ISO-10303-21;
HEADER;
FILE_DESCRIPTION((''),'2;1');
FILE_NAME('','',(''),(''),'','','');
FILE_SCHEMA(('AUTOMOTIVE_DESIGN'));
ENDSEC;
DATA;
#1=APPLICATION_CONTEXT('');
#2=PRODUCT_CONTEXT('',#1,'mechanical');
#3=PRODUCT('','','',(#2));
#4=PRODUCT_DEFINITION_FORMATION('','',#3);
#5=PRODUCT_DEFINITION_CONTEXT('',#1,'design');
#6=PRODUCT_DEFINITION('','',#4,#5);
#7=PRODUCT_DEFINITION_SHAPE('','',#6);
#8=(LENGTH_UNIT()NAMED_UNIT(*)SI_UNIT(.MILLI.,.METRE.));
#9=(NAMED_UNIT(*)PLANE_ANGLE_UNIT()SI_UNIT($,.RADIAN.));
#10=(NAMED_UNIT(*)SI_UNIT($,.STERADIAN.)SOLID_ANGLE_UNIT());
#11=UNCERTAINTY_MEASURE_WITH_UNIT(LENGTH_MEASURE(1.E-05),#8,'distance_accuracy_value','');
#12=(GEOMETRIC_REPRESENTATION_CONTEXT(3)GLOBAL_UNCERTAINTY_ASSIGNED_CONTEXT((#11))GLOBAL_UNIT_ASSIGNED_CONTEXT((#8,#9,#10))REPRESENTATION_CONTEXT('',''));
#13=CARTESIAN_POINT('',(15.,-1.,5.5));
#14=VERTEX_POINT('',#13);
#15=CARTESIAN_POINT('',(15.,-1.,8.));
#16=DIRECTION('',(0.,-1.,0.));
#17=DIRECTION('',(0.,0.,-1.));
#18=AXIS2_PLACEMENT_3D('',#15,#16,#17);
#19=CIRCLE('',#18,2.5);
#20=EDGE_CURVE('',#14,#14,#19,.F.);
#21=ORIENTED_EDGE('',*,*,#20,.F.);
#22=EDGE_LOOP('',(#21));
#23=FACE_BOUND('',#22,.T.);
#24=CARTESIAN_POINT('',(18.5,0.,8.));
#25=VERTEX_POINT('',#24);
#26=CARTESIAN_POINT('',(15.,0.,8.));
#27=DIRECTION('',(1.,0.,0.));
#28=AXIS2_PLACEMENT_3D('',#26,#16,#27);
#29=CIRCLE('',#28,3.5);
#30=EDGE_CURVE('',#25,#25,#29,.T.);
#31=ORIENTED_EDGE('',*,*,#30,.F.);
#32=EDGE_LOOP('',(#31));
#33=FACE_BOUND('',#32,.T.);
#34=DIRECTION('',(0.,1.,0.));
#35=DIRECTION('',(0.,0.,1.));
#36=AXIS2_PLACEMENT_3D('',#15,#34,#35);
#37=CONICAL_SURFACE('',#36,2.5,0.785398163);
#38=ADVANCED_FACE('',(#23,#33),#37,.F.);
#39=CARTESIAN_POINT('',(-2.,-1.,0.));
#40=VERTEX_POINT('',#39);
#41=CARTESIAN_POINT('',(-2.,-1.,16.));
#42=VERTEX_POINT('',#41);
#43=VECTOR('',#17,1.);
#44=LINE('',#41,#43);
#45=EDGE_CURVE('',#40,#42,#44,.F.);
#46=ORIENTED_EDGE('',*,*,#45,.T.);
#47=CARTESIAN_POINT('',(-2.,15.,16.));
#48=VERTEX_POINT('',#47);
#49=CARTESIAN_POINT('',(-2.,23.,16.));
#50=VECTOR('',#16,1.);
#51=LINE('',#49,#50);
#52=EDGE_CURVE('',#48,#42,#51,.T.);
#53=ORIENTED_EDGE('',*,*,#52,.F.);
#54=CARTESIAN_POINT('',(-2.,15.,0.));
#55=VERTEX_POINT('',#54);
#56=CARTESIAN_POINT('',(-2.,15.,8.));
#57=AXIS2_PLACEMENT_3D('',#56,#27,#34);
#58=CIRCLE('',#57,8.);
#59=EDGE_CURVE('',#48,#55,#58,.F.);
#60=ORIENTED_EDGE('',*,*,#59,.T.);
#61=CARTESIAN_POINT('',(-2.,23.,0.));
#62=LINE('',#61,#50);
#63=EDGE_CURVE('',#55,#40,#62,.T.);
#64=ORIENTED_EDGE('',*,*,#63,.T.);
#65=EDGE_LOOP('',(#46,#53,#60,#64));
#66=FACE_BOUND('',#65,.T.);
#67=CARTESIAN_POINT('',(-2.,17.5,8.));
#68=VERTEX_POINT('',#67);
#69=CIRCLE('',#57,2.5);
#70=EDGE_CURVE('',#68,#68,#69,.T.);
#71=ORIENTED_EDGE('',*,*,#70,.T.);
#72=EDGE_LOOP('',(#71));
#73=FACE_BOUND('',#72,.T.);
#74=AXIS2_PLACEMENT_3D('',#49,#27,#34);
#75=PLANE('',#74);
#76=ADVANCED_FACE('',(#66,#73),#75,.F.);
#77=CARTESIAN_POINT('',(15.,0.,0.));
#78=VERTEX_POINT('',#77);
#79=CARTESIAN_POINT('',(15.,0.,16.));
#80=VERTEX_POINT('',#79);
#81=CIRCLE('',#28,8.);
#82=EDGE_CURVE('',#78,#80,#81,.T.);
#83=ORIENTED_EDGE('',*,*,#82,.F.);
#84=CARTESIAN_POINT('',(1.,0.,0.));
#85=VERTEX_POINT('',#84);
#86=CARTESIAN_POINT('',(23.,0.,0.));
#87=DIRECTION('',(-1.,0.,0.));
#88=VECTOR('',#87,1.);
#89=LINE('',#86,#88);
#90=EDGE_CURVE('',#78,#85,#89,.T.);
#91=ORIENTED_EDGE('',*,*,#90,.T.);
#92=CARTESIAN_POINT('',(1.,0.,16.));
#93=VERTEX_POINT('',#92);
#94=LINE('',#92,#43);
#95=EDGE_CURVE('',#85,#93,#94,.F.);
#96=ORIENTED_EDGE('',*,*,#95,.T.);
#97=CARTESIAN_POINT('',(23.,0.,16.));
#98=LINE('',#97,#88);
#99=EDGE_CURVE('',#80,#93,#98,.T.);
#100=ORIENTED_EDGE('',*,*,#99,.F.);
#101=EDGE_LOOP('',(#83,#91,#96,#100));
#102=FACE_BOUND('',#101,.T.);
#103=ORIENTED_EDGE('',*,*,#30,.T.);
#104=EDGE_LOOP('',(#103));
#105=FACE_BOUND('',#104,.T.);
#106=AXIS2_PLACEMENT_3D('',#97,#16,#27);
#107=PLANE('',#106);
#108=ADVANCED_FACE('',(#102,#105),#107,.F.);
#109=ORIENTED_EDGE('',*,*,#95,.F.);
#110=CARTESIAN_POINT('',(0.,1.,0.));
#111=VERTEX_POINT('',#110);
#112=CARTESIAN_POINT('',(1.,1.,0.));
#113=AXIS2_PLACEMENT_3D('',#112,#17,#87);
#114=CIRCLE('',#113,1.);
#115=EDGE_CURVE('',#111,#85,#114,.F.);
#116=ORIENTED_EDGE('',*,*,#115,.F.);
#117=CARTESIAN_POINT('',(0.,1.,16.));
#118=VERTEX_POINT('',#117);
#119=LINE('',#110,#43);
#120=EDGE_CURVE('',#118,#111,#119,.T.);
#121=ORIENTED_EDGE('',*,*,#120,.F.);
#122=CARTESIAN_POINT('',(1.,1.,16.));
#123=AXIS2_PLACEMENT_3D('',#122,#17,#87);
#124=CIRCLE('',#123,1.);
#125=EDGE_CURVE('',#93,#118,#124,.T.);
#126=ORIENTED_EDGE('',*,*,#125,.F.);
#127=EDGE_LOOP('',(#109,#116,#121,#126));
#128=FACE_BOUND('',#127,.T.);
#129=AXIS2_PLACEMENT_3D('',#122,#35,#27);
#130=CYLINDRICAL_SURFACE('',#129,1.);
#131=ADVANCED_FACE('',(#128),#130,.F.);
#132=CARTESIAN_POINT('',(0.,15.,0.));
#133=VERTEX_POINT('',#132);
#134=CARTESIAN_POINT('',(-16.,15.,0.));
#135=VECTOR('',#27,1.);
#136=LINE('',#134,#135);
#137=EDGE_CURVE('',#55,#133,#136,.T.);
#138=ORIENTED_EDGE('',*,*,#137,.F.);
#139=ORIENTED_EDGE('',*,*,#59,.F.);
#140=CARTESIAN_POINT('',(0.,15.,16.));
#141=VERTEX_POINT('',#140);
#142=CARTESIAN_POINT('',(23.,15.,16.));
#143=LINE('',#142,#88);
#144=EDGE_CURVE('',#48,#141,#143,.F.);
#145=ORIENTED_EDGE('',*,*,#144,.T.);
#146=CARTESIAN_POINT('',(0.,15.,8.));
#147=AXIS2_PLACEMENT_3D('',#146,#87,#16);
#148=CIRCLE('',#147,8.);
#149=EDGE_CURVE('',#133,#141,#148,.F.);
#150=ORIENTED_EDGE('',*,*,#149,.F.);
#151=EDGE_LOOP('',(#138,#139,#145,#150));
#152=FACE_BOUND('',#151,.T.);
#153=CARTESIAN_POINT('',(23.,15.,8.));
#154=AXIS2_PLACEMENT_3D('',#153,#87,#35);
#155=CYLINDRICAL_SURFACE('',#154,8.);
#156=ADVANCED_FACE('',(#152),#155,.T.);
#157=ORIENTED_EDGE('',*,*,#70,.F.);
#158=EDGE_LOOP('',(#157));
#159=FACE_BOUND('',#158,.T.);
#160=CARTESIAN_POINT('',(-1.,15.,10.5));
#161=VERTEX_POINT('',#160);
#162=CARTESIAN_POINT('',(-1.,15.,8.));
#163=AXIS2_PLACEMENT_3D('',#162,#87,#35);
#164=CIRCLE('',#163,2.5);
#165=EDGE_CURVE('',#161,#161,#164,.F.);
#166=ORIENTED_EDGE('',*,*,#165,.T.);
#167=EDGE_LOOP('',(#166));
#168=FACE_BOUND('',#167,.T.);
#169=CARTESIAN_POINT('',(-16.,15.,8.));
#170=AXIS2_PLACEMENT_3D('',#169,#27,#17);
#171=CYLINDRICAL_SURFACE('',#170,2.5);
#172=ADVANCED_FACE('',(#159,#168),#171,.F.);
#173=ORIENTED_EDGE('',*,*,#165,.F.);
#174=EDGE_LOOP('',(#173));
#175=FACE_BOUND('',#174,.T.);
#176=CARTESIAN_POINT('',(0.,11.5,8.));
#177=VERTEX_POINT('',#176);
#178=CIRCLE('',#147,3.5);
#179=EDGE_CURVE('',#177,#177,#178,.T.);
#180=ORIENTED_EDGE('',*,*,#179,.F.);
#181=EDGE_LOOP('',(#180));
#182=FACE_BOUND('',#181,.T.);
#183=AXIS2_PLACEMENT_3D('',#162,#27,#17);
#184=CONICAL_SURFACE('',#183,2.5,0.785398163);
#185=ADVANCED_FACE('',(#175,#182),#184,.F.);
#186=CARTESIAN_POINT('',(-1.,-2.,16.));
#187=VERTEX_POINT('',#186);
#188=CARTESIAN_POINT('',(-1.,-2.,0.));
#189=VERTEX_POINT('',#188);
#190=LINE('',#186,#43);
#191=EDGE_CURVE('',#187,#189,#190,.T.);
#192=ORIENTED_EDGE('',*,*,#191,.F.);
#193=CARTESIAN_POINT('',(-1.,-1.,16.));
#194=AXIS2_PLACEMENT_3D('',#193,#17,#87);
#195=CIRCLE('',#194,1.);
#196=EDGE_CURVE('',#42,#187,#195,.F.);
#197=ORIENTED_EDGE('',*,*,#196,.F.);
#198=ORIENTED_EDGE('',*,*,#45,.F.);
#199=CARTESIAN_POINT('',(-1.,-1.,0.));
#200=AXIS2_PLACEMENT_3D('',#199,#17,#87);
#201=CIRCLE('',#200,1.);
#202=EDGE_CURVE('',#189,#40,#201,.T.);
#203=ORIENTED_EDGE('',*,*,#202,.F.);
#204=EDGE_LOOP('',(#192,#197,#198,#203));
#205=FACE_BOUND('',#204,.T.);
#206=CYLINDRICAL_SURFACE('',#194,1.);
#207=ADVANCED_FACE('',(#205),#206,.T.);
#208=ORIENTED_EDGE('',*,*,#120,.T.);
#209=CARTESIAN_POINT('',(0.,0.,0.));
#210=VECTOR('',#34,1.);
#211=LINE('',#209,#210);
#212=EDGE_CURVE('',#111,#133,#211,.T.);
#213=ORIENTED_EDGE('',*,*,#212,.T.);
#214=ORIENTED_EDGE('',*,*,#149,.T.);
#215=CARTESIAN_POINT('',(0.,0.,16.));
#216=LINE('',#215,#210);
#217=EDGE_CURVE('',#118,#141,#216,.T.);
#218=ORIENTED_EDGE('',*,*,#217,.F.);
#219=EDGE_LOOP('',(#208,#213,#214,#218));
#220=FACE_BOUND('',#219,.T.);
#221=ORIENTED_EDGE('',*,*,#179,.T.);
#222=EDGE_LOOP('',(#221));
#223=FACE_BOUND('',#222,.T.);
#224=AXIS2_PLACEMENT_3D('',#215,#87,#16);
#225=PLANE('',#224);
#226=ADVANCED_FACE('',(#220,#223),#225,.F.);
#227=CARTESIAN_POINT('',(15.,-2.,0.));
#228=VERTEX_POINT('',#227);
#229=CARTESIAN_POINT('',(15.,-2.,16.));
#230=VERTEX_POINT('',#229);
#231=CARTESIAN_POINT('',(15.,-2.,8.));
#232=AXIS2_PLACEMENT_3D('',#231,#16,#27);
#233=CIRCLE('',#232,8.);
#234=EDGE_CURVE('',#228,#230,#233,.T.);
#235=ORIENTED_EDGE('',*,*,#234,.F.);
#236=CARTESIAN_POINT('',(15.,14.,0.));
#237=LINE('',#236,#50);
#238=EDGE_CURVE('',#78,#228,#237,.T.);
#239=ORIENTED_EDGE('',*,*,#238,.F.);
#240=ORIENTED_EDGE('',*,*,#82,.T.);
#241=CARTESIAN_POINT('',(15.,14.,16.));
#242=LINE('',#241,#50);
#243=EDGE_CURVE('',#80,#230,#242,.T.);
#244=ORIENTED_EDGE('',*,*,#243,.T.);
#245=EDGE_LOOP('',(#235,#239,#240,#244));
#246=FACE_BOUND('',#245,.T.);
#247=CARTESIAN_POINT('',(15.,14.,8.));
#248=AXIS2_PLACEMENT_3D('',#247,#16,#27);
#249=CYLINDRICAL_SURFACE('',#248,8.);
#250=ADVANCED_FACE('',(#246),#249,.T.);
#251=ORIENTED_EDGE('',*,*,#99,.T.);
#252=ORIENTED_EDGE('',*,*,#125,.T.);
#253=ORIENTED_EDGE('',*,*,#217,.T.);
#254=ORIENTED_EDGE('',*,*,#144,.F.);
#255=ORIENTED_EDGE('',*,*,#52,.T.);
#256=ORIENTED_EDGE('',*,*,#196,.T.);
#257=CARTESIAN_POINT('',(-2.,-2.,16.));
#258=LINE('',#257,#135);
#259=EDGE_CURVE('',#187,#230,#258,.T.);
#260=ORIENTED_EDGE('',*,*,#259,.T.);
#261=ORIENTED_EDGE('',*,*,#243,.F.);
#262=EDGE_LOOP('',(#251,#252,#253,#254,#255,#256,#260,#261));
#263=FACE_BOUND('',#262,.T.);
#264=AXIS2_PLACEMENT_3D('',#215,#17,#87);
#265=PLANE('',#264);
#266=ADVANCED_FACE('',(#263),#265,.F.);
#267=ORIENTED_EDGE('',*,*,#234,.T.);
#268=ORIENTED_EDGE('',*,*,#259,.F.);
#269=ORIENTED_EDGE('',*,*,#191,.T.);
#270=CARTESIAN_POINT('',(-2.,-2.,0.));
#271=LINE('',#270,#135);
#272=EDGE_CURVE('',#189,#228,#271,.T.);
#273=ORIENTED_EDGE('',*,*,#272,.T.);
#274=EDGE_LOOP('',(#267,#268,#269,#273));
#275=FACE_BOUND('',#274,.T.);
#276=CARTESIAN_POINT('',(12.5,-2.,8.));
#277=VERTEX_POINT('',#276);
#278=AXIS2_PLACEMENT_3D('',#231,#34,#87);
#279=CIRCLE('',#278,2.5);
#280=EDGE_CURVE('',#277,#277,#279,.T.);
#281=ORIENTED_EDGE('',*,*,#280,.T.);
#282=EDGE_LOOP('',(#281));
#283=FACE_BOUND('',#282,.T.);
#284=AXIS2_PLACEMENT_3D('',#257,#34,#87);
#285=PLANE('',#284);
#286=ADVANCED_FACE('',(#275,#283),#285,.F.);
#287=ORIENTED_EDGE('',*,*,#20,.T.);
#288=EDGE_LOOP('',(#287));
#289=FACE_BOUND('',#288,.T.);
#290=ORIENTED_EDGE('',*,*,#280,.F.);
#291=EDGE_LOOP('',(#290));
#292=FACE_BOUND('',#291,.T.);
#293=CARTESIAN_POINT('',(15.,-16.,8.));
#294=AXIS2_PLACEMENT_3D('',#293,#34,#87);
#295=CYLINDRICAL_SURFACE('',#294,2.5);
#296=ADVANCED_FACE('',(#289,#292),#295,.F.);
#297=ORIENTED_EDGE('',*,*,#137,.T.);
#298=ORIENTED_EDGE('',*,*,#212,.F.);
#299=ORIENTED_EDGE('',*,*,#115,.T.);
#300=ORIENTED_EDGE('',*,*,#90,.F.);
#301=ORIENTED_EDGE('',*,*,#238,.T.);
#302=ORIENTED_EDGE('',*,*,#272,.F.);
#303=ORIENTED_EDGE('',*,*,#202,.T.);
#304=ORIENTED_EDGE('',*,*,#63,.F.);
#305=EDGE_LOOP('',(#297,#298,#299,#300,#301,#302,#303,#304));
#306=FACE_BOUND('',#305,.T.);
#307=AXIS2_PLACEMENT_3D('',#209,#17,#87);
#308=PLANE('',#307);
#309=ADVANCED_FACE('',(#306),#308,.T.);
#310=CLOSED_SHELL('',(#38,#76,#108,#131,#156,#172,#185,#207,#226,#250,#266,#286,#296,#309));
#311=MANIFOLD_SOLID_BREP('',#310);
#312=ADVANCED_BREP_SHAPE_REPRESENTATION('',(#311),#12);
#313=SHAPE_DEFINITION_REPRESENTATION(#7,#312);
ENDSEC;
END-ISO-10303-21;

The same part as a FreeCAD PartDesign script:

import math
import FreeCAD as App
import Part
import Sketcher


def edges_at(feature, points):
    """Names of the edges that pass closest to the given points."""
    edges = feature.Shape.Edges
    near = lambda p: min(range(len(edges)), key=lambda i: edges[i].distToShape(Part.Vertex(*p))[0])
    return sorted({f"Edge{near(p) + 1}" for p in points})

doc = App.newDocument("Part")
body = doc.addObject("PartDesign::Body", "Body")

sketch1 = body.newObject("Sketcher::SketchObject", "Sketch")
sketch1.AttachmentSupport = (doc.getObject("XY_Plane"), [""])
sketch1.MapMode = "FlatFace"
sketch1.addGeometry([
    Part.LineSegment(App.Vector(0, 0, 0), App.Vector(0, 23, 0)),
    Part.LineSegment(App.Vector(0, 23, 0), App.Vector(-2, 23, 0)),
    Part.LineSegment(App.Vector(-2, 23, 0), App.Vector(-2, -2, 0)),
    Part.LineSegment(App.Vector(-2, -2, 0), App.Vector(23, -2, 0)),
    Part.LineSegment(App.Vector(23, -2, 0), App.Vector(23, 0, 0)),
    Part.LineSegment(App.Vector(23, 0, 0), App.Vector(0, 0, 0)),
], False)
sketch1.addConstraint([
    Sketcher.Constraint("Coincident", 0, 2, 1, 1),
    Sketcher.Constraint("Coincident", 1, 2, 2, 1),
    Sketcher.Constraint("Coincident", 2, 2, 3, 1),
    Sketcher.Constraint("Coincident", 3, 2, 4, 1),
    Sketcher.Constraint("Coincident", 4, 2, 5, 1),
    Sketcher.Constraint("Coincident", 5, 2, 0, 1),
    Sketcher.Constraint("Vertical", 0),
    Sketcher.Constraint("Horizontal", 1),
    Sketcher.Constraint("Vertical", 2),
    Sketcher.Constraint("Horizontal", 3),
    Sketcher.Constraint("Vertical", 4),
    Sketcher.Constraint("Horizontal", 5),
    Sketcher.Constraint("Coincident", 5, 2, -1, 1),
    Sketcher.Constraint("Equal", 5, 0),
    Sketcher.Constraint("Equal", 3, 2),
    Sketcher.Constraint("DistanceX", 1, 2, 1, 1, 2.0),
    Sketcher.Constraint("DistanceX", 3, 1, 3, 2, 25.0),
])
pad1 = body.newObject("PartDesign::Pad", "Pad")
pad1.Profile = sketch1
pad1.Length = 16

sketch2 = body.newObject("Sketcher::SketchObject", "Sketch001")
sketch2.AttachmentSupport = (doc.getObject("YZ_Plane"), [""])
sketch2.MapMode = "FlatFace"
sketch2.addGeometry([
    Part.ArcOfCircle(Part.Circle(App.Vector(15, 8, 0), App.Vector(0, 0, 1), 8), math.radians(0), math.radians(90)),
    Part.LineSegment(App.Vector(23, 8, 0), App.Vector(23, 16, 0)),
    Part.LineSegment(App.Vector(23, 16, 0), App.Vector(15, 16, 0)),
    Part.ArcOfCircle(Part.Circle(App.Vector(15, 8, 0), App.Vector(0, 0, 1), 8), math.radians(-90), math.radians(0)),
    Part.LineSegment(App.Vector(15, 0, 0), App.Vector(23, 0, 0)),
    Part.LineSegment(App.Vector(23, 0, 0), App.Vector(23, 8, 0)),
], False)
sketch2.addConstraint([
    Sketcher.Constraint("Tangent", 0, 1, 1, 1),
    Sketcher.Constraint("Coincident", 1, 2, 2, 1),
    Sketcher.Constraint("Tangent", 2, 2, 0, 2),
    Sketcher.Constraint("Tangent", 3, 1, 4, 1),
    Sketcher.Constraint("Coincident", 4, 2, 5, 1),
    Sketcher.Constraint("Tangent", 5, 2, 3, 2),
    Sketcher.Constraint("Vertical", 1),
    Sketcher.Constraint("Horizontal", 2),
    Sketcher.Constraint("Horizontal", 4),
    Sketcher.Constraint("Vertical", 5),
    Sketcher.Constraint("Coincident", 3, 3, 0, 3),
    Sketcher.Constraint("Equal", 0, 3),
    Sketcher.Constraint("PointOnObject", 3, 1, -1),
    Sketcher.Constraint("Radius", 0, 8.0),
    Sketcher.Constraint("DistanceX", -1, 1, 0, 3, 15.0),
])
pocket1 = body.newObject("PartDesign::Pocket", "Pocket")
pocket1.Profile = sketch2
pocket1.Type = "ThroughAll"
pocket1.Midplane = True

sketch3 = body.newObject("Sketcher::SketchObject", "Sketch002")
sketch3.AttachmentSupport = (doc.getObject("XZ_Plane"), [""])
sketch3.MapMode = "FlatFace"
sketch3.AttachmentOffset = App.Placement(App.Vector(0, 0, 2), App.Rotation())
sketch3.addGeometry([
    Part.ArcOfCircle(Part.Circle(App.Vector(15, 8, 0), App.Vector(0, 0, 1), 8), math.radians(-90), math.radians(0)),
    Part.LineSegment(App.Vector(15, 0, 0), App.Vector(23, 0, 0)),
    Part.LineSegment(App.Vector(23, 0, 0), App.Vector(23, 8, 0)),
    Part.ArcOfCircle(Part.Circle(App.Vector(15, 8, 0), App.Vector(0, 0, 1), 8), math.radians(0), math.radians(90)),
    Part.LineSegment(App.Vector(23, 8, 0), App.Vector(23, 16, 0)),
    Part.LineSegment(App.Vector(23, 16, 0), App.Vector(15, 16, 0)),
], False)
sketch3.addConstraint([
    Sketcher.Constraint("Tangent", 0, 1, 1, 1),
    Sketcher.Constraint("Coincident", 1, 2, 2, 1),
    Sketcher.Constraint("Tangent", 2, 2, 0, 2),
    Sketcher.Constraint("Tangent", 3, 1, 4, 1),
    Sketcher.Constraint("Coincident", 4, 2, 5, 1),
    Sketcher.Constraint("Tangent", 5, 2, 3, 2),
    Sketcher.Constraint("Horizontal", 1),
    Sketcher.Constraint("Vertical", 2),
    Sketcher.Constraint("Vertical", 4),
    Sketcher.Constraint("Horizontal", 5),
    Sketcher.Constraint("Coincident", 3, 3, 0, 3),
    Sketcher.Constraint("Equal", 0, 3),
    Sketcher.Constraint("PointOnObject", 0, 1, -1),
    Sketcher.Constraint("Radius", 0, 8.0),
    Sketcher.Constraint("DistanceX", -1, 1, 0, 3, 15.0),
])
pocket2 = body.newObject("PartDesign::Pocket", "Pocket001")
pocket2.Profile = sketch3
pocket2.Type = "ThroughAll"
pocket2.Midplane = True

sketch4 = body.newObject("Sketcher::SketchObject", "Sketch003")
sketch4.AttachmentSupport = (doc.getObject("XZ_Plane"), [""])
sketch4.MapMode = "FlatFace"
sketch4.addGeometry(Part.Circle(App.Vector(15, 8, 0), App.Vector(0, 0, 1), 2.5), False)
sketch4.addConstraint([
    Sketcher.Constraint("Diameter", 0, 5.0),
    Sketcher.Constraint("DistanceX", -1, 1, 0, 3, 15.0),
    Sketcher.Constraint("DistanceY", -1, 1, 0, 3, 8.0),
])
pocket3 = body.newObject("PartDesign::Pocket", "Pocket002")
pocket3.Profile = sketch4
pocket3.Length = 16
pocket3.Reversed = True

sketch5 = body.newObject("Sketcher::SketchObject", "Sketch004")
sketch5.AttachmentSupport = (doc.getObject("YZ_Plane"), [""])
sketch5.MapMode = "FlatFace"
sketch5.addGeometry(Part.Circle(App.Vector(15, 8, 0), App.Vector(0, 0, 1), 2.5), False)
sketch5.addConstraint([
    Sketcher.Constraint("Diameter", 0, 5.0),
    Sketcher.Constraint("DistanceX", -1, 1, 0, 3, 15.0),
    Sketcher.Constraint("DistanceY", -1, 1, 0, 3, 8.0),
])
pocket4 = body.newObject("PartDesign::Pocket", "Pocket003")
pocket4.Profile = sketch5
pocket4.Length = 16
doc.recompute()

fillet = body.newObject("PartDesign::Fillet", "Fillet")
fillet.Base = (pocket4, edges_at(pocket4, [(0, 0, 8)]))
fillet.Radius = 1
doc.recompute()

fillet2 = body.newObject("PartDesign::Fillet", "Fillet001")
fillet2.Base = (fillet, edges_at(fillet, [(-2, -2, 8)]))
fillet2.Radius = 1
doc.recompute()

chamfer = body.newObject("PartDesign::Chamfer", "Chamfer")
chamfer.Base = (fillet2, edges_at(fillet2, [(0, 15, 10.5)]))
chamfer.Size = 1
doc.recompute()

chamfer2 = body.newObject("PartDesign::Chamfer", "Chamfer001")
chamfer2.Base = (chamfer, edges_at(chamfer, [(17.5, 0, 8)]))
chamfer2.Size = 1

doc.recompute()
